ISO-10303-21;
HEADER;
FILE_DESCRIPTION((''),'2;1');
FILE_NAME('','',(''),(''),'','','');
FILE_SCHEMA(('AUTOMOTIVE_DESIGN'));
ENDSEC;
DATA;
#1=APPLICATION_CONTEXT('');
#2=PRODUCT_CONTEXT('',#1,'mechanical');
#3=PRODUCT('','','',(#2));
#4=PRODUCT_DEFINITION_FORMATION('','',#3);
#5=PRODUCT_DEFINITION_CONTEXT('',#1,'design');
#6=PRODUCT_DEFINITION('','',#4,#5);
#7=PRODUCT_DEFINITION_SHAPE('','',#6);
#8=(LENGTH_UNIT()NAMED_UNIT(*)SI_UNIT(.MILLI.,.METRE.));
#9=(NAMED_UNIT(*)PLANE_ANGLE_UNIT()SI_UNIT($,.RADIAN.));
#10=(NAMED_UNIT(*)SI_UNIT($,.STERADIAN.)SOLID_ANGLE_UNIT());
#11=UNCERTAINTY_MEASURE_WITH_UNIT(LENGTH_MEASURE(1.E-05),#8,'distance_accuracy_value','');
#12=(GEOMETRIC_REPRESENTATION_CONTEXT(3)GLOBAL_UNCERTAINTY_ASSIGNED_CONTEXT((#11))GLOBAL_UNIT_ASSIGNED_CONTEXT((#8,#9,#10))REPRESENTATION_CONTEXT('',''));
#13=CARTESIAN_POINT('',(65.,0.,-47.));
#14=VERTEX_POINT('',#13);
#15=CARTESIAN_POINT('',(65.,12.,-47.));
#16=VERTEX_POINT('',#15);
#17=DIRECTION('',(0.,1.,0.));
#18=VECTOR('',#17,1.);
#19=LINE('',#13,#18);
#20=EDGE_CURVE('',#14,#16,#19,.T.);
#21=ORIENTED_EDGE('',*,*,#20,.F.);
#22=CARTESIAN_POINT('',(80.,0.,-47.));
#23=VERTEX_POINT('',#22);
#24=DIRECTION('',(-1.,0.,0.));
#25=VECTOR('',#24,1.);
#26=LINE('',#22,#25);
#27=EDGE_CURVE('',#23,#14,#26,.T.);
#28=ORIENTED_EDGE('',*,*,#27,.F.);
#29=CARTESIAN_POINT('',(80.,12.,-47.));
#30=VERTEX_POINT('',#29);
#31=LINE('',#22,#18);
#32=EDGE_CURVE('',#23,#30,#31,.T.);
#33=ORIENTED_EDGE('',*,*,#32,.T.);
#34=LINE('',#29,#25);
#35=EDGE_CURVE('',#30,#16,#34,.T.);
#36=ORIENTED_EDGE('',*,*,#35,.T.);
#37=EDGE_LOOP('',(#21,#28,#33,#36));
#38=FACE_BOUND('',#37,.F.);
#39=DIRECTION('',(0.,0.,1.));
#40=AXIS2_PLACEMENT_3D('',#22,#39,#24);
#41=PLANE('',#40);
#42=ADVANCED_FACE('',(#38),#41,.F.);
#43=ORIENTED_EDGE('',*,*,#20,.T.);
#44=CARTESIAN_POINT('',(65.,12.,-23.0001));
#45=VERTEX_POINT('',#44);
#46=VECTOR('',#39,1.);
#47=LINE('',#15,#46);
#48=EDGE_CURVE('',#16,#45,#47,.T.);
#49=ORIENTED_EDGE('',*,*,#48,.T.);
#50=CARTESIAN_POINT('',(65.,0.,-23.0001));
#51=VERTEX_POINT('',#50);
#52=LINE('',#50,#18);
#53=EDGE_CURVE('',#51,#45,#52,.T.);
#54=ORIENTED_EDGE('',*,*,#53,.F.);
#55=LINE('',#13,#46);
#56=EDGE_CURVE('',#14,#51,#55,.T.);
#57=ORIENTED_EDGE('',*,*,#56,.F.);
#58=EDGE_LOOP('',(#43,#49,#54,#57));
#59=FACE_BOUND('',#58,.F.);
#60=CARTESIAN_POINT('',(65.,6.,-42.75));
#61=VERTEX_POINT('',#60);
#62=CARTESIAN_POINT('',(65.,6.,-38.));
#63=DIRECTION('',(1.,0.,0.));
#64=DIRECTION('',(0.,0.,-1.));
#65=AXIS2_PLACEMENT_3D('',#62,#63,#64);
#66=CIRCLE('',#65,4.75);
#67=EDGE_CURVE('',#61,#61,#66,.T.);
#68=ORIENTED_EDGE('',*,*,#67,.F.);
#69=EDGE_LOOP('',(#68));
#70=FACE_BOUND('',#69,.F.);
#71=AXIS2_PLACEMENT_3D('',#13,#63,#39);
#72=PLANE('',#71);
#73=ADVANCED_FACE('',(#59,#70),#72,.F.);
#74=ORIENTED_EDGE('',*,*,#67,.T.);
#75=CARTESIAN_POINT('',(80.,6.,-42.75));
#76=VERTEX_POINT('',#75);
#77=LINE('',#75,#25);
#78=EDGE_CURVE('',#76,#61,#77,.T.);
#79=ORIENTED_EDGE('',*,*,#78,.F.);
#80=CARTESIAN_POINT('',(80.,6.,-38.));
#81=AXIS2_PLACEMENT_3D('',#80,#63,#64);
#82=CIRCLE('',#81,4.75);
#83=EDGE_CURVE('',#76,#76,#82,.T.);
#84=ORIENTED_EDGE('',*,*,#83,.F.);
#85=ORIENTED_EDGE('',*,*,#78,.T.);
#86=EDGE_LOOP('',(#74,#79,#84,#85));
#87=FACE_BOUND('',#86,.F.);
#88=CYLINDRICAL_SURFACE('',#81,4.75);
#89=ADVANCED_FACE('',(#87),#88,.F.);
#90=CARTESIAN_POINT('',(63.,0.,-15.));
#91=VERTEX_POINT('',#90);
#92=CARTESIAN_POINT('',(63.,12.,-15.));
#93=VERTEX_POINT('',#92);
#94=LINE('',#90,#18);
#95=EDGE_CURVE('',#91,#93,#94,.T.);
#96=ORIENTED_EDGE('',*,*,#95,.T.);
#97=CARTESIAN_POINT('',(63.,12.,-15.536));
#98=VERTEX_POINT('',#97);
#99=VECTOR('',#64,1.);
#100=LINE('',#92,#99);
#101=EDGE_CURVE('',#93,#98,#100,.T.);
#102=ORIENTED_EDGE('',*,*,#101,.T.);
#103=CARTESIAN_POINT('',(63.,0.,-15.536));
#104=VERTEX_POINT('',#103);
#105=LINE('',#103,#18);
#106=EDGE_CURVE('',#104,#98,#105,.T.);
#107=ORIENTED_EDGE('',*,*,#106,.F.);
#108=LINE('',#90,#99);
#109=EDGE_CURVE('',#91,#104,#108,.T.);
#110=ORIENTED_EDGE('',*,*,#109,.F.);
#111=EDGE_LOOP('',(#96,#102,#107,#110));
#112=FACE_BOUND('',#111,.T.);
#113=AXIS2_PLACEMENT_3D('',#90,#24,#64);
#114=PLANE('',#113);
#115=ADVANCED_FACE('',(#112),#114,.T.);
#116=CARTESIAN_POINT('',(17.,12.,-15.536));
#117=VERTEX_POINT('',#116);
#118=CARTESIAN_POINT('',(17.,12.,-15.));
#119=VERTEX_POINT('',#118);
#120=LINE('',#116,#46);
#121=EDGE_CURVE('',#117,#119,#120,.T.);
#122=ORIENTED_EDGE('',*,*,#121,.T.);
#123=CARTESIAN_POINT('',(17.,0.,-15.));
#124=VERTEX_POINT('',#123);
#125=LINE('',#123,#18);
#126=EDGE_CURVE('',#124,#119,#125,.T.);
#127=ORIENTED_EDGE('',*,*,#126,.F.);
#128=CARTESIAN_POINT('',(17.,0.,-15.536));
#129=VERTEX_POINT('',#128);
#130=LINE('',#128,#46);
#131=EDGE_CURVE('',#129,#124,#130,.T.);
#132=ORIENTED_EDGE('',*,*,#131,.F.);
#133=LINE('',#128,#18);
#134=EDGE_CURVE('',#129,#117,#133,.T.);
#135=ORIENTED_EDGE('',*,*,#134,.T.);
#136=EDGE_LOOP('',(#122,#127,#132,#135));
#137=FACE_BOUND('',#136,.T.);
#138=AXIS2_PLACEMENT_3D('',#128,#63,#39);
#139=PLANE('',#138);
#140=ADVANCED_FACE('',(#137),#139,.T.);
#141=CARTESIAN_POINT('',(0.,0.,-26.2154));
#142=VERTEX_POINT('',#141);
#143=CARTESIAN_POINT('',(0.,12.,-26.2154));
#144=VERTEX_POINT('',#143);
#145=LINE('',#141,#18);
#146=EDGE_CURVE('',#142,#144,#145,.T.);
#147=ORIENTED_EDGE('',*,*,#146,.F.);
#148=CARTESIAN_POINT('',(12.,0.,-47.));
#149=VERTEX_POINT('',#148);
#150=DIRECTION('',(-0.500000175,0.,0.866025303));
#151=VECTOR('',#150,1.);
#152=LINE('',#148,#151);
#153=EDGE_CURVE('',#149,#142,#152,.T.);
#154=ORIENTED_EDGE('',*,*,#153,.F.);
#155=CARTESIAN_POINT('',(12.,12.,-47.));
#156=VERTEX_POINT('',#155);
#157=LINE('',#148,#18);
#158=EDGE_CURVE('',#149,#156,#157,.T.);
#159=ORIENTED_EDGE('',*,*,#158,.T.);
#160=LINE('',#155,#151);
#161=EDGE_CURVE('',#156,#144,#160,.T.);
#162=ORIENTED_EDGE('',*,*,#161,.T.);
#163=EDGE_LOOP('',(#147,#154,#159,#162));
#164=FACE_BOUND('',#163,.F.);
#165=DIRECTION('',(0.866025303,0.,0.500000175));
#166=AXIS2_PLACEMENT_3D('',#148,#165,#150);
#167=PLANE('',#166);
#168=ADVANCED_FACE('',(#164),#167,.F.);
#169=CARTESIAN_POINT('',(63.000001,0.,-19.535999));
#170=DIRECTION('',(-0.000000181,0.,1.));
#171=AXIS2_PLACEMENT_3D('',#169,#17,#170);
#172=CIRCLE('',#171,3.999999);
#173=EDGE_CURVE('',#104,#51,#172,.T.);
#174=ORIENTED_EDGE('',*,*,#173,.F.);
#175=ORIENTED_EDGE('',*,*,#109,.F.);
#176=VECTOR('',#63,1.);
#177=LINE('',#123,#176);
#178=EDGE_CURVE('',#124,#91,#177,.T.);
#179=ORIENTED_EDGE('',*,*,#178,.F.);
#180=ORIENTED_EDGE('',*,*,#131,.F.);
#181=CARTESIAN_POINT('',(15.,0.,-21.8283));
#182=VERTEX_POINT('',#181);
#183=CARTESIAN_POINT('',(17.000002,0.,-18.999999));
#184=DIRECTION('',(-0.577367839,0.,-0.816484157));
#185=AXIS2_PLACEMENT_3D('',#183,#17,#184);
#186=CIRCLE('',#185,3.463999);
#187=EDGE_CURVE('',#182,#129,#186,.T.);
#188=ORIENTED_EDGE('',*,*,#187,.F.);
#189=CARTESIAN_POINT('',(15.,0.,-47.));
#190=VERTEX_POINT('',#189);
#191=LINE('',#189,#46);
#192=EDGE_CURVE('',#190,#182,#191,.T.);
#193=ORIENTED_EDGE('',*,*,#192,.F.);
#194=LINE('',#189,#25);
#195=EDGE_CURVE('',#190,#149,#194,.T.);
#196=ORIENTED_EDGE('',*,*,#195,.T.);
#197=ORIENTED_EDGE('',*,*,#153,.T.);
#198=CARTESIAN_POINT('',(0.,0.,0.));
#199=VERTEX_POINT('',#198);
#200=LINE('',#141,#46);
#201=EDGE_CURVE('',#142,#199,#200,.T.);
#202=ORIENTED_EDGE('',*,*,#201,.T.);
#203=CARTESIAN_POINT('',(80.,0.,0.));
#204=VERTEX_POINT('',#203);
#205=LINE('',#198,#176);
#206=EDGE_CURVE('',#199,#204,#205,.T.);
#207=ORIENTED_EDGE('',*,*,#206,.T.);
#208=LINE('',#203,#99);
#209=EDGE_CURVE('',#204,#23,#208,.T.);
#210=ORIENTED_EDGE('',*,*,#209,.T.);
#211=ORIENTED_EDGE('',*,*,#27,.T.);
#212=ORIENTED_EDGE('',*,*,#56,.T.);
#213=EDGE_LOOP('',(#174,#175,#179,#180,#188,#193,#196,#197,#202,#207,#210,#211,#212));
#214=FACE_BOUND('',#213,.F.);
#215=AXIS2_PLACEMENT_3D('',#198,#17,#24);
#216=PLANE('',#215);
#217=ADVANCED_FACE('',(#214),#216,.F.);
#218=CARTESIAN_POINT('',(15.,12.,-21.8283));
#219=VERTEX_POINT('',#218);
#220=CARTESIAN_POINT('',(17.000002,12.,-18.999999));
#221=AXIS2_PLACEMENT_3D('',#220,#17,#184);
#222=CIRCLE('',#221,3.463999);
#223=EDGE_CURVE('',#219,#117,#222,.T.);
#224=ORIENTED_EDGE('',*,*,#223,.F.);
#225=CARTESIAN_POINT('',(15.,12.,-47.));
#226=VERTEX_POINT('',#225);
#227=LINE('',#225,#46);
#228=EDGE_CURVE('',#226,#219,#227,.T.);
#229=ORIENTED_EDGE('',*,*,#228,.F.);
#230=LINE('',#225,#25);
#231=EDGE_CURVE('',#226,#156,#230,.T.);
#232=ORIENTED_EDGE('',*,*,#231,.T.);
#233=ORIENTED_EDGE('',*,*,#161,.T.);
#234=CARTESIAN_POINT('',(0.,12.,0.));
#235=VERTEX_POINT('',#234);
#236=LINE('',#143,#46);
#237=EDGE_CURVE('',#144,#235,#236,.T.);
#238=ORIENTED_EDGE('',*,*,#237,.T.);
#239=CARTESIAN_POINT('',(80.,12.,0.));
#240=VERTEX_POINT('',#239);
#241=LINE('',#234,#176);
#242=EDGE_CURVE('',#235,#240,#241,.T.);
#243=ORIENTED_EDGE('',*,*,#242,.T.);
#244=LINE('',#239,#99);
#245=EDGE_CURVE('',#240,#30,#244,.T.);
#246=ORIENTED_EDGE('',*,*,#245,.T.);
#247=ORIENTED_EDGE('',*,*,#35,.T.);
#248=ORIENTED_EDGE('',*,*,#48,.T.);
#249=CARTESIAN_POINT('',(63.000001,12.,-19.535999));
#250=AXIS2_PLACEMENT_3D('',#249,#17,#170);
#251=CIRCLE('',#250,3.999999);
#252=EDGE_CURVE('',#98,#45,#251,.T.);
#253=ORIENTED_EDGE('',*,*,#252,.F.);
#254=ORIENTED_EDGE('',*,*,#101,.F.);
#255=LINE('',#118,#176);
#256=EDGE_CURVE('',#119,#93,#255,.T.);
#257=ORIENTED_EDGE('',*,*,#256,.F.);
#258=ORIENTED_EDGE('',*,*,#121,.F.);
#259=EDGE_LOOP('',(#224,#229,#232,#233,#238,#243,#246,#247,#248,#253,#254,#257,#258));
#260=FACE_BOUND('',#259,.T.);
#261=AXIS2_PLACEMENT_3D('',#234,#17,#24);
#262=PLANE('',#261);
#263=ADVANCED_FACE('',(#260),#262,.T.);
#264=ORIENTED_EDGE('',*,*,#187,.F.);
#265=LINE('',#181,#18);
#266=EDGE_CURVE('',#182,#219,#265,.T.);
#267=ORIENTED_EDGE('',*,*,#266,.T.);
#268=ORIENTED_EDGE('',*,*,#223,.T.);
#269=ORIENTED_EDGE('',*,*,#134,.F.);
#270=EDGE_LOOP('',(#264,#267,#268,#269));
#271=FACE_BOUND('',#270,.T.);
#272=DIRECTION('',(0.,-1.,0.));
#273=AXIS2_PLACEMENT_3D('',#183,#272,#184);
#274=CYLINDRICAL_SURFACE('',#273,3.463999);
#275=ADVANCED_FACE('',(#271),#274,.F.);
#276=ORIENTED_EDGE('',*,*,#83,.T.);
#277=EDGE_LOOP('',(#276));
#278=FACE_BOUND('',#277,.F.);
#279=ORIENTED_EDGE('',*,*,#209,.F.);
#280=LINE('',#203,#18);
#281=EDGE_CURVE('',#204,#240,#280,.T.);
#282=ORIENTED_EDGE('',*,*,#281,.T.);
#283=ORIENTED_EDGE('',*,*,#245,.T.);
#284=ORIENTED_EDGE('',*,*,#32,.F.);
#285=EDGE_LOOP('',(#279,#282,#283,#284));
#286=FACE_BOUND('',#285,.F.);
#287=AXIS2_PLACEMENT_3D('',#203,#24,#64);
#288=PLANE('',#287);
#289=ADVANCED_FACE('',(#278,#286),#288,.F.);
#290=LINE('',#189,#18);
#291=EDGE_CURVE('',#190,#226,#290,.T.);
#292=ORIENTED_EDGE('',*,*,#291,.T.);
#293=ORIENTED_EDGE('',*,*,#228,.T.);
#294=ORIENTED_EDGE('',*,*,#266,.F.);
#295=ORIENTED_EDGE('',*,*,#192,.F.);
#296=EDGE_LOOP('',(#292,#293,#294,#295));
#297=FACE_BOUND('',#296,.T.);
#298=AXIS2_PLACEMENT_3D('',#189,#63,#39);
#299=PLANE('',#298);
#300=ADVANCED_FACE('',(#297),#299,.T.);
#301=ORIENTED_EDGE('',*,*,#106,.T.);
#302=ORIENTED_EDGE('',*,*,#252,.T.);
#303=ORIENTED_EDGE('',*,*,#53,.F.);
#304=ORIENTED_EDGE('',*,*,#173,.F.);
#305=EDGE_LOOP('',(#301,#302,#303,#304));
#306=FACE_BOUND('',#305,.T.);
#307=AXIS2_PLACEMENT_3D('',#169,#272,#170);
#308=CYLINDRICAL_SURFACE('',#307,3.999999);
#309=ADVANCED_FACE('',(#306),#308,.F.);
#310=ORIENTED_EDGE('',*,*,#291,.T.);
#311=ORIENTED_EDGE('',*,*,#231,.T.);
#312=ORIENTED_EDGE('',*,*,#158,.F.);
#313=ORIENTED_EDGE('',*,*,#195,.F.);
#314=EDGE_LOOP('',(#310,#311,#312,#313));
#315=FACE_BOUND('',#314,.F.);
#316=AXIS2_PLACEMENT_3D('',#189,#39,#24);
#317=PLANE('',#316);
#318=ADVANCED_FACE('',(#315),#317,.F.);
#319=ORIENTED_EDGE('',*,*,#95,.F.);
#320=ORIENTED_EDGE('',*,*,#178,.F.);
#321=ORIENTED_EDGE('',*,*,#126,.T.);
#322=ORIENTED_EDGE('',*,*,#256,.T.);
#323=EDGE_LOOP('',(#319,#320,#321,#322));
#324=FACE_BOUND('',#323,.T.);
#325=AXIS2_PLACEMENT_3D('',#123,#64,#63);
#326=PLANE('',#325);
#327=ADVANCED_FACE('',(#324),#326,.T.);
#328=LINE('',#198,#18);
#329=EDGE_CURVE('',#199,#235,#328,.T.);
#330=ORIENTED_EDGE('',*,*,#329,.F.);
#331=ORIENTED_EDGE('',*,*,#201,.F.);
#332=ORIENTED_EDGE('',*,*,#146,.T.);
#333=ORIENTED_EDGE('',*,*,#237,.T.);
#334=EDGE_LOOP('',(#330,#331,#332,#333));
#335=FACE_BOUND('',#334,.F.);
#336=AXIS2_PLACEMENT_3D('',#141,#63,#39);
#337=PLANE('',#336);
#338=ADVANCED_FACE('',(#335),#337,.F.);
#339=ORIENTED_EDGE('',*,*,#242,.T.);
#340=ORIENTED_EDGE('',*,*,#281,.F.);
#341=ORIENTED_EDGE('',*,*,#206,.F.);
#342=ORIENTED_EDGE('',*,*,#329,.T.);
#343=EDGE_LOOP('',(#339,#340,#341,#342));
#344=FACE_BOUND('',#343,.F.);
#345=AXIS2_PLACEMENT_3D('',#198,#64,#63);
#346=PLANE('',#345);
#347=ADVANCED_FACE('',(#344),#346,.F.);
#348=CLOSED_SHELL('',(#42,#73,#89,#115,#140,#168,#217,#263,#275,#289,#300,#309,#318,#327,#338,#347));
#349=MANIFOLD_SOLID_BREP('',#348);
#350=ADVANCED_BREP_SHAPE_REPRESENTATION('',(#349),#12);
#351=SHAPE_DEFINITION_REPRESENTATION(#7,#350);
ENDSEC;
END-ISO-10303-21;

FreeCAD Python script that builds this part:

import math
import FreeCAD as App
import Part
import Sketcher
from FreeCAD import Vector
Q = App.Units.Quantity

doc = App.newDocument("Part")
body = doc.addObject("PartDesign::Body", "Body")

sketch1 = body.newObject("Sketcher::SketchObject", "Sketch")
sketch1.AttachmentSupport = (doc.getObject("XZ_Plane"), [""])
sketch1.MapMode = "FlatFace"
sketch1.addGeometry(Part.LineSegment(Vector(0, -26.2, 0), Vector(0, 0, 0)), False)
sketch1.addGeometry(Part.LineSegment(Vector(0, 0, 0), Vector(80, 0, 0)), False)
sketch1.addGeometry(Part.LineSegment(Vector(80, 0, 0), Vector(80, -47, 0)), False)
sketch1.addGeometry(Part.LineSegment(Vector(80, -47, 0), Vector(65, -47, 0)), False)
sketch1.addGeometry(Part.LineSegment(Vector(65, -47, 0), Vector(65, -23, 0)), False)
sketch1.addGeometry(Part.ArcOfCircle(Part.Circle(Vector(63, -19.5, 0), Vector(0, 0, 1), 4), math.radians(-60), math.radians(90)), False)
sketch1.addGeometry(Part.LineSegment(Vector(63, -15.5, 0), Vector(63, -15, 0)), False)
sketch1.addGeometry(Part.LineSegment(Vector(63, -15, 0), Vector(17, -15, 0)), False)
sketch1.addGeometry(Part.LineSegment(Vector(17, -15, 0), Vector(17, -15.5, 0)), False)
sketch1.addGeometry(Part.ArcOfCircle(Part.Circle(Vector(17, -19, 0), Vector(0, 0, 1), 3.5), math.radians(90), math.radians(235)), False)
sketch1.addGeometry(Part.LineSegment(Vector(15, -21.8, 0), Vector(15, -47, 0)), False)
sketch1.addGeometry(Part.LineSegment(Vector(15, -47, 0), Vector(12, -47, 0)), False)
sketch1.addGeometry(Part.LineSegment(Vector(12, -47, 0), Vector(0, -26.2, 0)), False)
sketch1.addConstraint(Sketcher.Constraint("Coincident", 0, 2, 1, 1))
sketch1.addConstraint(Sketcher.Constraint("Coincident", 1, 2, 2, 1))
sketch1.addConstraint(Sketcher.Constraint("Coincident", 2, 2, 3, 1))
sketch1.addConstraint(Sketcher.Constraint("Coincident", 3, 2, 4, 1))
sketch1.addConstraint(Sketcher.Constraint("Coincident", 4, 2, 5, 1))
sketch1.addConstraint(Sketcher.Constraint("Coincident", 5, 2, 6, 1))
sketch1.addConstraint(Sketcher.Constraint("Coincident", 6, 2, 7, 1))
sketch1.addConstraint(Sketcher.Constraint("Coincident", 7, 2, 8, 1))
sketch1.addConstraint(Sketcher.Constraint("Coincident", 8, 2, 9, 1))
sketch1.addConstraint(Sketcher.Constraint("Coincident", 9, 2, 10, 1))
sketch1.addConstraint(Sketcher.Constraint("Coincident", 10, 2, 11, 1))
sketch1.addConstraint(Sketcher.Constraint("Coincident", 11, 2, 12, 1))
sketch1.addConstraint(Sketcher.Constraint("Coincident", 12, 2, 0, 1))
sketch1.addConstraint(Sketcher.Constraint("Vertical", 0))
sketch1.addConstraint(Sketcher.Constraint("Horizontal", 1))
sketch1.addConstraint(Sketcher.Constraint("Vertical", 2))
sketch1.addConstraint(Sketcher.Constraint("Horizontal", 3))
sketch1.addConstraint(Sketcher.Constraint("Vertical", 4))
sketch1.addConstraint(Sketcher.Constraint("Vertical", 6))
sketch1.addConstraint(Sketcher.Constraint("Horizontal", 7))
sketch1.addConstraint(Sketcher.Constraint("Vertical", 8))
sketch1.addConstraint(Sketcher.Constraint("Vertical", 10))
sketch1.addConstraint(Sketcher.Constraint("Horizontal", 11))
sketch1.addConstraint(Sketcher.Constraint("Coincident", 0, 2, -1, 1))
sketch1.addConstraint(Sketcher.Constraint("Horizontal", 5, 2, 8, 2))
sketch1.addConstraint(Sketcher.Constraint("Horizontal", 3, 2, 10, 2))
sketch1.addConstraint(Sketcher.Constraint("Vertical", 9, 3, 7, 2))
sketch1.addConstraint(Sketcher.Constraint("Radius", 5, Q("4 mm")))
sketch1.addConstraint(Sketcher.Constraint("DistanceX", 1, 1, 1, 2, Q("80 mm")))
sketch1.addConstraint(Sketcher.Constraint("DistanceX", 3, 2, 3, 1, Q("15 mm")))
sketch1.addConstraint(Sketcher.Constraint("DistanceX", 11, 2, 11, 1, Q("3 mm")))
sketch1.addConstraint(Sketcher.Constraint("DistanceY", 2, 2, 2, 1, Q("47 mm")))
sketch1.addConstraint(Sketcher.Constraint("DistanceX", -1, 1, 9, 3, Q("17 mm")))
sketch1.addConstraint(Sketcher.Constraint("DistanceY", 9, 3, -1, 1, Q("19 mm")))
sketch1.addConstraint(Sketcher.Constraint("DistanceY", 6, 2, -1, 1, Q("15 mm")))
sketch1.addConstraint(Sketcher.Constraint("DistanceX", -1, 1, 9, 2, Q("15 mm")))
sketch1.addConstraint(Sketcher.Constraint("DistanceX", 5, 3, 1, 2, Q("17 mm")))
sketch1.addConstraint(Sketcher.Constraint("DistanceX", 5, 2, 1, 2, Q("17 mm")))
sketch1.addConstraint(Sketcher.Constraint("DistanceY", 4, 2, 6, 2, Q("8 mm")))
sketch1.addConstraint(Sketcher.Constraint("Angle", 12, Q("120 deg")))
pad1 = body.newObject("PartDesign::Pad", "Pad")
pad1.Profile = sketch1
pad1.Length = 12
pad1.Reversed = True

sketch2 = body.newObject("Sketcher::SketchObject", "Sketch001")
sketch2.AttachmentSupport = (doc.getObject("YZ_Plane"), [""])
sketch2.MapMode = "FlatFace"
sketch2.AttachmentOffset = App.Placement(Vector(0, 0, 80), App.Rotation())
sketch2.addGeometry(Part.Circle(Vector(6, -38, 0), Vector(0, 0, 1), 4.8), False)
sketch2.addConstraint(Sketcher.Constraint("Diameter", 0, Q("9.5 mm")))
sketch2.addConstraint(Sketcher.Constraint("DistanceY", 0, 3, -1, 1, Q("38 mm")))
sketch2.addConstraint(Sketcher.Constraint("DistanceX", -1, 1, 0, 3, Q("6 mm")))
pocket1 = body.newObject("PartDesign::Pocket", "Pocket")
pocket1.Profile = sketch2
pocket1.Length = 15

doc.recompute()
